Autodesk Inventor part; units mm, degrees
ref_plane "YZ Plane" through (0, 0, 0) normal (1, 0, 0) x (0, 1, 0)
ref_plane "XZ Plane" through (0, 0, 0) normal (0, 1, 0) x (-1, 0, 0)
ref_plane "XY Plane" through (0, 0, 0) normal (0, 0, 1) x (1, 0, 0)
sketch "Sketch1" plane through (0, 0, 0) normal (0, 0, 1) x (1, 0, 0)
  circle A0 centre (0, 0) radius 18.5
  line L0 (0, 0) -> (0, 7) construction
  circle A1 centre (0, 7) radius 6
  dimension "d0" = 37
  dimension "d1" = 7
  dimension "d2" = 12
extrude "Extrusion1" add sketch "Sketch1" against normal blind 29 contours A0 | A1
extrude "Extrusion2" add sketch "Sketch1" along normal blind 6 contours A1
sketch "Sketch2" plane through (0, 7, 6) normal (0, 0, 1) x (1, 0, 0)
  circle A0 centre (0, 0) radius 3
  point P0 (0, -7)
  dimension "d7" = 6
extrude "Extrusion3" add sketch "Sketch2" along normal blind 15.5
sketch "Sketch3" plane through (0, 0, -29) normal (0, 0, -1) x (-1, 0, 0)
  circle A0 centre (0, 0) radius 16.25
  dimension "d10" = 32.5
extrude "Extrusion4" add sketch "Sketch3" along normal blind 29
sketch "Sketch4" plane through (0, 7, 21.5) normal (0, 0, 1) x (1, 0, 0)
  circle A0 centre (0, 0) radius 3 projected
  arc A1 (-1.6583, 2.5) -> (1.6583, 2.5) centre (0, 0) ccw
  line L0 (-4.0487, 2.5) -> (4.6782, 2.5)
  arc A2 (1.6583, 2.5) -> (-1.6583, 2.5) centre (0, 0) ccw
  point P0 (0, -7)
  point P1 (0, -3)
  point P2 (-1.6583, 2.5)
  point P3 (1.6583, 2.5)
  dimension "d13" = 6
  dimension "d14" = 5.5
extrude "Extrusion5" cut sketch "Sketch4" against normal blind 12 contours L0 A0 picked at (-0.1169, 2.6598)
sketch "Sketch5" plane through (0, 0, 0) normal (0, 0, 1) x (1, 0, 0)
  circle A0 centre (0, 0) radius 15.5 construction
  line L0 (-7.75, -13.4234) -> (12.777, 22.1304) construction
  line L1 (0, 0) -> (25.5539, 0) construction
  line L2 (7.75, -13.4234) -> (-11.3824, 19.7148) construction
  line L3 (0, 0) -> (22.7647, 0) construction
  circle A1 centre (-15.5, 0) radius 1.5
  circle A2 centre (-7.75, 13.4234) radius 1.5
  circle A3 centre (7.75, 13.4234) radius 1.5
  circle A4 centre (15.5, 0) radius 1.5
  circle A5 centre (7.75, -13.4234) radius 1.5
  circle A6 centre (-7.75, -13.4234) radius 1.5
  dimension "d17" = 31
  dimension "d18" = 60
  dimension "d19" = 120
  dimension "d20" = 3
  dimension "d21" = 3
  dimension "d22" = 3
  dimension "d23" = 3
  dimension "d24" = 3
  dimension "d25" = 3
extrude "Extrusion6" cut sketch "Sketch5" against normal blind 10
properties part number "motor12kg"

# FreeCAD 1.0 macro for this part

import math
import FreeCAD as App
import Part
import Sketcher
from FreeCAD import Vector
Q = App.Units.Quantity

doc = App.newDocument("Part")
body = doc.addObject("PartDesign::Body", "Body")

sketch1 = body.newObject("Sketcher::SketchObject", "Sketch")
sketch1.AttachmentSupport = (doc.getObject("XY_Plane"), [""])
sketch1.MapMode = "FlatFace"
sketch1.addGeometry(Part.Circle(Vector(0, 0, 0), Vector(0, 0, 1), 18), False)
sketch1.addConstraint([
    Sketcher.Constraint("Coincident", 0, 3, -1, 1),
    Sketcher.Constraint("Diameter", 0, Q("37 mm")),
])
pad1 = body.newObject("PartDesign::Pad", "Pad")
pad1.Profile = sketch1
pad1.Length = 29
pad1.Reversed = True

sketch2 = body.newObject("Sketcher::SketchObject", "Sketch001")
sketch2.AttachmentSupport = (doc.getObject("XY_Plane"), [""])
sketch2.MapMode = "FlatFace"
sketch2.addGeometry(Part.Circle(Vector(0, 7, 0), Vector(0, 0, 1), 6), False)
sketch2.addConstraint([
    Sketcher.Constraint("PointOnObject", 0, 3, -2),
    Sketcher.Constraint("Diameter", 0, Q("12 mm")),
    Sketcher.Constraint("DistanceY", -1, 1, 0, 3, Q("7 mm")),
])
pad2 = body.newObject("PartDesign::Pad", "Pad001")
pad2.Profile = sketch2
pad2.Length = 6

sketch3 = body.newObject("Sketcher::SketchObject", "Sketch002")
sketch3.AttachmentSupport = (doc.getObject("XY_Plane"), [""])
sketch3.MapMode = "FlatFace"
sketch3.AttachmentOffset = App.Placement(Vector(0, 0, 6), App.Rotation())
sketch3.addGeometry(Part.Circle(Vector(0, 7, 0), Vector(0, 0, 1), 3), False)
sketch3.addConstraint([
    Sketcher.Constraint("PointOnObject", 0, 3, -2),
    Sketcher.Constraint("Diameter", 0, Q("6 mm")),
    Sketcher.Constraint("DistanceY", -1, 1, 0, 3, Q("7 mm")),
])
pad3 = body.newObject("PartDesign::Pad", "Pad002")
pad3.Profile = sketch3
pad3.Length = 15.5

sketch4 = body.newObject("Sketcher::SketchObject", "Sketch003")
sketch4.AttachmentSupport = (doc.getObject("XY_Plane"), [""])
sketch4.MapMode = "FlatFace"
sketch4.AttachmentOffset = App.Placement(Vector(0, 0, -29), App.Rotation())
sketch4.addGeometry(Part.Circle(Vector(0, 0, 0), Vector(0, 0, 1), 16), False)
sketch4.addConstraint([
    Sketcher.Constraint("Coincident", 0, 3, -1, 1),
    Sketcher.Constraint("Diameter", 0, Q("32.5 mm")),
])
pad4 = body.newObject("PartDesign::Pad", "Pad003")
pad4.Profile = sketch4
pad4.Length = 29
pad4.Reversed = True

sketch5 = body.newObject("Sketcher::SketchObject", "Sketch004")
sketch5.AttachmentSupport = (doc.getObject("XY_Plane"), [""])
sketch5.MapMode = "FlatFace"
sketch5.AttachmentOffset = App.Placement(Vector(0, 0, 21.5), App.Rotation())
sketch5.addGeometry([
    Part.LineSegment(Vector(-1.7, 9.5, 0), Vector(1.7, 9.5, 0)),
    Part.ArcOfCircle(Part.Circle(Vector(0, 7, 0), Vector(0, 0, 1), 3), math.radians(56), math.radians(124)),
], False)
sketch5.addConstraint([
    Sketcher.Constraint("Coincident", 0, 1, 1, 2),
    Sketcher.Constraint("Coincident", 1, 1, 0, 2),
    Sketcher.Constraint("Horizontal", 0),
    Sketcher.Constraint("PointOnObject", 1, 3, -2),
    Sketcher.Constraint("Radius", 1, Q("3 mm")),
    Sketcher.Constraint("DistanceY", -1, 1, 1, 3, Q("7 mm")),
    Sketcher.Constraint("DistanceY", -1, 1, 0, 1, Q("9.5 mm")),
])
pocket1 = body.newObject("PartDesign::Pocket", "Pocket")
pocket1.Profile = sketch5
pocket1.Length = 12

sketch6 = body.newObject("Sketcher::SketchObject", "Sketch005")
sketch6.AttachmentSupport = (doc.getObject("XY_Plane"), [""])
sketch6.MapMode = "FlatFace"
sketch6.addGeometry([
    Part.Circle(Vector(-15.5, 0, 0), Vector(0, 0, 1), 1.5),
    Part.Circle(Vector(-7.8, 13.4, 0), Vector(0, 0, 1), 1.5),
    Part.Circle(Vector(7.8, 13.4, 0), Vector(0, 0, 1), 1.5),
    Part.Circle(Vector(15.5, 0, 0), Vector(0, 0, 1), 1.5),
    Part.Circle(Vector(7.8, -13.4, 0), Vector(0, 0, 1), 1.5),
    Part.Circle(Vector(-7.8, -13.4, 0), Vector(0, 0, 1), 1.5),
], False)
sketch6.addConstraint([
    Sketcher.Constraint("Equal", 0, 1),
    Sketcher.Constraint("Equal", 1, 2),
    Sketcher.Constraint("Equal", 2, 3),
    Sketcher.Constraint("Equal", 3, 4),
    Sketcher.Constraint("Equal", 4, 5),
    Sketcher.Constraint("Symmetric", 0, 3, 3, 3, -1, 1),
    Sketcher.Constraint("Symmetric", 1, 3, 4, 3, -1, 1),
    Sketcher.Constraint("Symmetric", 2, 3, 5, 3, -1, 1),
    Sketcher.Constraint("Symmetric", 1, 3, 2, 3, -2),
    Sketcher.Constraint("PointOnObject", 0, 3, -1),
    Sketcher.Constraint("Diameter", 0, Q("3 mm")),
    Sketcher.Constraint("DistanceX", 0, 3, 3, 3, Q("31 mm")),
    Sketcher.Constraint("DistanceX", 1, 3, 2, 3, Q("15.5 mm")),
    Sketcher.Constraint("DistanceY", -1, 1, 1, 3, Q("13.4234 mm")),
])
pocket2 = body.newObject("PartDesign::Pocket", "Pocket001")
pocket2.Profile = sketch6
pocket2.Length = 10

doc.recompute()
